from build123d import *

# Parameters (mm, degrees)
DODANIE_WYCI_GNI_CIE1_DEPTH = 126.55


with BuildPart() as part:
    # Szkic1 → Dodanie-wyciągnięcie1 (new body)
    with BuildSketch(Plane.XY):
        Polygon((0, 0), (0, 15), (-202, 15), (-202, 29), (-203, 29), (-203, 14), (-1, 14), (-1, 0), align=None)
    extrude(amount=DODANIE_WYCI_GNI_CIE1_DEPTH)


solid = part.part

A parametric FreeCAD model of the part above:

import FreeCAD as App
import Part
import Sketcher

V = App.Vector


def add_polygon(sketch, points):
    """Adds a closed chain of lines whose ends are joined by coincident constraints."""
    first, n = sketch.GeometryCount, len(points)
    for a, b in zip(points, points[1:] + points[:1]):
        sketch.addGeometry(Part.LineSegment(App.Vector(*a, 0), App.Vector(*b, 0)), False)
    for i in range(n):
        sketch.addConstraint(Sketcher.Constraint("Coincident", first + i, 2, first + (i + 1) % n, 1))

doc = App.newDocument("Part")
body = doc.addObject("PartDesign::Body", "Body")

sketch1 = body.newObject("Sketcher::SketchObject", "Sketch")
sketch1.AttachmentSupport = (doc.getObject("XY_Plane"), [""])
sketch1.MapMode = "FlatFace"
add_polygon(sketch1, [(0, 0), (0, 15), (-202, 15), (-202, 29), (-203, 29), (-203, 14), (-1, 14), (-1, 0)])
sketch1.addConstraint(Sketcher.Constraint("Vertical", 0))
sketch1.addConstraint(Sketcher.Constraint("Horizontal", 1))
sketch1.addConstraint(Sketcher.Constraint("Vertical", 2))
sketch1.addConstraint(Sketcher.Constraint("Horizontal", 3))
sketch1.addConstraint(Sketcher.Constraint("Vertical", 4))
sketch1.addConstraint(Sketcher.Constraint("Horizontal", 5))
sketch1.addConstraint(Sketcher.Constraint("Vertical", 6))
sketch1.addConstraint(Sketcher.Constraint("Horizontal", 7))
sketch1.addConstraint(Sketcher.Constraint("Coincident", 7, 2, -1, 1))
sketch1.addConstraint(Sketcher.Constraint("Equal", 1, 5))
sketch1.addConstraint(Sketcher.Constraint("Equal", 0, 4))
sketch1.addConstraint(Sketcher.Constraint("DistanceX", 1, 2, 1, 1, 202.0))
sketch1.addConstraint(Sketcher.Constraint("DistanceX", 3, 2, 3, 1, 1.0))
sketch1.addConstraint(Sketcher.Constraint("DistanceY", 0, 1, 0, 2, 15.0))
sketch1.addConstraint(Sketcher.Constraint("DistanceY", 2, 1, 2, 2, 14.0))
pad1 = body.newObject("PartDesign::Pad", "Pad")
pad1.Profile = sketch1
pad1.Length = 126.55

doc.recompute()
